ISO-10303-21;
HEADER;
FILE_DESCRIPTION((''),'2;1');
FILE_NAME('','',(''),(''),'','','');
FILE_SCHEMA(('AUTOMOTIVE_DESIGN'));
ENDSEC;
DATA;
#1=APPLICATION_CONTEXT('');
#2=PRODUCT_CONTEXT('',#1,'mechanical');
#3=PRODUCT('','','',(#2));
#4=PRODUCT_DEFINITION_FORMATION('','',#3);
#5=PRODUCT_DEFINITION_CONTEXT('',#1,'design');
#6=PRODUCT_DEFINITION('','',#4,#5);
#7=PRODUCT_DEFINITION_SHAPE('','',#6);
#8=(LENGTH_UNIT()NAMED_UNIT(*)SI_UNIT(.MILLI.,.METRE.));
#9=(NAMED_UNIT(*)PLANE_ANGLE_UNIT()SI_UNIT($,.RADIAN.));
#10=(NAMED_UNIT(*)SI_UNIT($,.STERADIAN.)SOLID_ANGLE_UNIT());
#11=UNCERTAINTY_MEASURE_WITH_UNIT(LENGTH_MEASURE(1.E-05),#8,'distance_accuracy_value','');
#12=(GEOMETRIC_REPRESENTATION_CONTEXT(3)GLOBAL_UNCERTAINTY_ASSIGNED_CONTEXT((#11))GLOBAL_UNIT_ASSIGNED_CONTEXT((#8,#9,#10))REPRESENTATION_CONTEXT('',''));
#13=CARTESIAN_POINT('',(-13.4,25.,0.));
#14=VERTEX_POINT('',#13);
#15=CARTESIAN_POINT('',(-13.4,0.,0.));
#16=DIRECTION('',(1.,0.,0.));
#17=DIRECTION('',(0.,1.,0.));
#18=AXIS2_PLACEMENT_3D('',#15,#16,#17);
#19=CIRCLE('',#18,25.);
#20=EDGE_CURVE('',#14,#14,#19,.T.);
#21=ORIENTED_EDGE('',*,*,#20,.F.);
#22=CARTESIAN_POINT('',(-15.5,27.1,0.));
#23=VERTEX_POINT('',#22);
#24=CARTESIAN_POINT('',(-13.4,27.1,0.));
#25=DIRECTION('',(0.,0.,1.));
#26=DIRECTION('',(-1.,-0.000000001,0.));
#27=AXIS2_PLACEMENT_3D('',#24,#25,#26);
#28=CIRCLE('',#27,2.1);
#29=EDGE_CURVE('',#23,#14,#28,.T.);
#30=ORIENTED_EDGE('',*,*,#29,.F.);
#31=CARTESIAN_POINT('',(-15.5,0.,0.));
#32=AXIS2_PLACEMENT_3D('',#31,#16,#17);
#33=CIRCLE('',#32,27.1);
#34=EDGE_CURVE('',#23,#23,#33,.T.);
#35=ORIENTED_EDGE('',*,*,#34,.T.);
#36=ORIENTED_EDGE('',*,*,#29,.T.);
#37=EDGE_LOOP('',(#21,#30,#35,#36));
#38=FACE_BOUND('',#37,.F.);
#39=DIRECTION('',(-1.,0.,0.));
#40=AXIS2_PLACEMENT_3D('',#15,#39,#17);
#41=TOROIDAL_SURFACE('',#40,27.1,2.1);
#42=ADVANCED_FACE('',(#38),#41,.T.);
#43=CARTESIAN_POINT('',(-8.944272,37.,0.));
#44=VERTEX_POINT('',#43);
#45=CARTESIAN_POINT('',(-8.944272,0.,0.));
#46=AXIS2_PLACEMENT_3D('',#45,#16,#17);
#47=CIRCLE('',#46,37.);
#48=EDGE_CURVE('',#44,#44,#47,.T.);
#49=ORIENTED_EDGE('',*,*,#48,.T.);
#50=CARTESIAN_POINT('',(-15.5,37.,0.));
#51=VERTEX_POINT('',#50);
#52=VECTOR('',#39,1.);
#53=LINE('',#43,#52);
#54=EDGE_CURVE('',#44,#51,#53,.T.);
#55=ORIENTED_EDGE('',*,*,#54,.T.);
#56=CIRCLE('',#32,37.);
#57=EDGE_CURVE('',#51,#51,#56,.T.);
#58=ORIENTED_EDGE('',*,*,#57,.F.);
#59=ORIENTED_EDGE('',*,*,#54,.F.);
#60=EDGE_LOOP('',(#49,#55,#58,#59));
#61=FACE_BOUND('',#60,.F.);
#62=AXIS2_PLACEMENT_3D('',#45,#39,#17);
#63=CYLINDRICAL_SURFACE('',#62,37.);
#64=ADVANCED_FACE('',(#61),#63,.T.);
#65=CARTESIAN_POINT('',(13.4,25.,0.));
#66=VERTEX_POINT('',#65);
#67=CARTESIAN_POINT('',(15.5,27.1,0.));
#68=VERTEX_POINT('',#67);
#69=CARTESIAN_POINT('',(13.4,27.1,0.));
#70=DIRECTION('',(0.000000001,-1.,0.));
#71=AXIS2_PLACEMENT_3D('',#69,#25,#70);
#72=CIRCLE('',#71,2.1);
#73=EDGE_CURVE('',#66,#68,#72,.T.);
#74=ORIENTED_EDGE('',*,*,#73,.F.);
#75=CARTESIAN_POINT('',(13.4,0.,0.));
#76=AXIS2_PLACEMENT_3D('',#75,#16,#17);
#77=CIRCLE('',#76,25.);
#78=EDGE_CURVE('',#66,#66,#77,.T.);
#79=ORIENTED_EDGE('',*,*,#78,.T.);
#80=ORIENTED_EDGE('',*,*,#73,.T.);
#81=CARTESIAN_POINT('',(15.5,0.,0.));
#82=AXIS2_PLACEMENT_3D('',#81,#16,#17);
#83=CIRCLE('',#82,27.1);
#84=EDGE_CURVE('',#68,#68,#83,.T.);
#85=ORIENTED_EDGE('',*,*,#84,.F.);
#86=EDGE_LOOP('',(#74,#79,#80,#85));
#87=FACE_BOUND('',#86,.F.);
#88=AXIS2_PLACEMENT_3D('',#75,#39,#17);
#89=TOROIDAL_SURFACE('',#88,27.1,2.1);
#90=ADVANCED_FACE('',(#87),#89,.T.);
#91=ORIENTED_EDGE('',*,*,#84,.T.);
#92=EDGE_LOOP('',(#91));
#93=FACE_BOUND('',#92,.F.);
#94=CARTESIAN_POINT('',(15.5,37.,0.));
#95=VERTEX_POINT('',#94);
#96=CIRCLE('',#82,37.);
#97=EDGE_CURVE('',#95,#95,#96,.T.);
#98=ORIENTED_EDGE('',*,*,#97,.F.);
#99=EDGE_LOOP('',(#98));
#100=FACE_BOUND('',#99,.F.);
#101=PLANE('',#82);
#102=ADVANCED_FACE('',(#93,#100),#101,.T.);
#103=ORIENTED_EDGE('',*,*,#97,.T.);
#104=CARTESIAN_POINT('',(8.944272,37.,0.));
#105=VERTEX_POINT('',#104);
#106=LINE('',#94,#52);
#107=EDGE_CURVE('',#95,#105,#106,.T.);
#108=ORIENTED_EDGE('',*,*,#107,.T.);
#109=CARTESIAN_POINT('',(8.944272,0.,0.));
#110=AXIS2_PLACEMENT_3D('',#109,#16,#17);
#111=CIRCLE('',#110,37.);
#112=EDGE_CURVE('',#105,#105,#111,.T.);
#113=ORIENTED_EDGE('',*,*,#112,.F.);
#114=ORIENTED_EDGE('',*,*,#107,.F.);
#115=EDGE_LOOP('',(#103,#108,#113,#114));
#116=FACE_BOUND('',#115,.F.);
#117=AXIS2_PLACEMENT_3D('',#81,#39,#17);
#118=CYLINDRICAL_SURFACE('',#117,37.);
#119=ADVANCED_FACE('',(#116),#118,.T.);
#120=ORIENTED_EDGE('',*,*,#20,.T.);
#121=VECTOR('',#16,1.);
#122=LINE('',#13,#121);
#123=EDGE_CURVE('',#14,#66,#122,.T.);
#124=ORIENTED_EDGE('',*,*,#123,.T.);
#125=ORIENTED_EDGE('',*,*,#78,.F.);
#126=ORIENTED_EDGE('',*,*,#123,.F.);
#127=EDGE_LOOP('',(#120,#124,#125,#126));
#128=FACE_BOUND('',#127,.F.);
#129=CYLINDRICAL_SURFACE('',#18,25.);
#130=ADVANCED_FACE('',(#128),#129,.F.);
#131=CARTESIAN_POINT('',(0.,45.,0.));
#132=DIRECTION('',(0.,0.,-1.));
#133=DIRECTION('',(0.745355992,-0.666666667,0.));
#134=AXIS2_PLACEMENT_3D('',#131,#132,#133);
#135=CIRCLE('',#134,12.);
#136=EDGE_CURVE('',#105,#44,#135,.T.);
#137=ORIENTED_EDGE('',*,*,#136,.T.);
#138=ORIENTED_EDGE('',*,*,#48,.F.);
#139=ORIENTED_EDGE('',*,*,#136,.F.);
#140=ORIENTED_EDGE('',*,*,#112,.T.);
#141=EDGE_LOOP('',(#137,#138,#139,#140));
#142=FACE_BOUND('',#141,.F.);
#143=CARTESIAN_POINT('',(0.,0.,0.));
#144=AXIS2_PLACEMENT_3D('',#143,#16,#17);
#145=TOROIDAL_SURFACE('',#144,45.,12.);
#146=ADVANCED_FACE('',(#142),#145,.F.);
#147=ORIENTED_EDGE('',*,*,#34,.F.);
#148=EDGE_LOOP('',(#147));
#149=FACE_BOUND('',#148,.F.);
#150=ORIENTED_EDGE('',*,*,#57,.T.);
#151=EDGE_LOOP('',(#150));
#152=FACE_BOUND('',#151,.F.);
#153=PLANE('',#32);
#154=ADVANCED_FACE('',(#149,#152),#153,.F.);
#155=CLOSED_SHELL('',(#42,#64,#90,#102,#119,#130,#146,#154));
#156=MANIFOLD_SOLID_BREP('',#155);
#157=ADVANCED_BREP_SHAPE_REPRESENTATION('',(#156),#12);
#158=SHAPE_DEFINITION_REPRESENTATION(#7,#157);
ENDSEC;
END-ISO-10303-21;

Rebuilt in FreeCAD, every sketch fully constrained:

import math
import FreeCAD as App
import Part
import Sketcher
from FreeCAD import Vector
Q = App.Units.Quantity

doc = App.newDocument("Part")
body = doc.addObject("PartDesign::Body", "Body")

sketch1 = body.newObject("Sketcher::SketchObject", "Sketch")
sketch1.AttachmentSupport = (doc.getObject("XY_Plane"), [""])
sketch1.MapMode = "FlatFace"
sketch1.addGeometry([
    Part.LineSegment(Vector(-15.5, 37, 0), Vector(-15.5, 27.1, 0)),
    Part.ArcOfCircle(Part.Circle(Vector(-13.4, 27.1, 0), Vector(0, 0, 1), 2.1), math.radians(-180), math.radians(-90)),
    Part.LineSegment(Vector(-13.4, 25, 0), Vector(13.4, 25, 0)),
    Part.ArcOfCircle(Part.Circle(Vector(13.4, 27.1, 0), Vector(0, 0, 1), 2.1), math.radians(-90), math.radians(0)),
    Part.LineSegment(Vector(15.5, 27.1, 0), Vector(15.5, 37, 0)),
    Part.LineSegment(Vector(15.5, 37, 0), Vector(8.9, 37, 0)),
    Part.ArcOfCircle(Part.Circle(Vector(0, 45, 0), Vector(0, 0, 1), 12), math.radians(-138), math.radians(-42)),
    Part.LineSegment(Vector(-8.9, 37, 0), Vector(-15.5, 37, 0)),
], False)
sketch1.addConstraint([
    Sketcher.Constraint("Tangent", 0, 2, 1, 1),
    Sketcher.Constraint("Tangent", 1, 2, 2, 1),
    Sketcher.Constraint("Tangent", 2, 2, 3, 1),
    Sketcher.Constraint("Tangent", 3, 2, 4, 1),
    Sketcher.Constraint("Coincident", 4, 2, 5, 1),
    Sketcher.Constraint("Coincident", 5, 2, 6, 2),
    Sketcher.Constraint("Coincident", 6, 1, 7, 1),
    Sketcher.Constraint("Coincident", 7, 2, 0, 1),
    Sketcher.Constraint("Vertical", 0),
    Sketcher.Constraint("Horizontal", 2),
    Sketcher.Constraint("Vertical", 4),
    Sketcher.Constraint("Horizontal", 5),
    Sketcher.Constraint("Horizontal", 7),
    Sketcher.Constraint("Equal", 1, 3),
    Sketcher.Constraint("Symmetric", 5, 2, 6, 1, -2),
    Sketcher.Constraint("Equal", 5, 7),
    Sketcher.Constraint("Radius", 6, Q("12 mm")),
    Sketcher.Constraint("Radius", 1, Q("2.1 mm")),
    Sketcher.Constraint("DistanceX", 2, 1, 2, 2, Q("26.8 mm")),
    Sketcher.Constraint("DistanceY", 0, 2, 0, 1, Q("9.9 mm")),
    Sketcher.Constraint("DistanceY", -1, 1, 6, 3, Q("45 mm")),
    Sketcher.Constraint("DistanceY", -1, 1, 1, 2, Q("25 mm")),
])
revolution = body.newObject("PartDesign::Revolution", "Revolution")
revolution.Profile = sketch1
revolution.ReferenceAxis = (sketch1, ["H_Axis"])
revolution.Angle = 360

doc.recompute()
